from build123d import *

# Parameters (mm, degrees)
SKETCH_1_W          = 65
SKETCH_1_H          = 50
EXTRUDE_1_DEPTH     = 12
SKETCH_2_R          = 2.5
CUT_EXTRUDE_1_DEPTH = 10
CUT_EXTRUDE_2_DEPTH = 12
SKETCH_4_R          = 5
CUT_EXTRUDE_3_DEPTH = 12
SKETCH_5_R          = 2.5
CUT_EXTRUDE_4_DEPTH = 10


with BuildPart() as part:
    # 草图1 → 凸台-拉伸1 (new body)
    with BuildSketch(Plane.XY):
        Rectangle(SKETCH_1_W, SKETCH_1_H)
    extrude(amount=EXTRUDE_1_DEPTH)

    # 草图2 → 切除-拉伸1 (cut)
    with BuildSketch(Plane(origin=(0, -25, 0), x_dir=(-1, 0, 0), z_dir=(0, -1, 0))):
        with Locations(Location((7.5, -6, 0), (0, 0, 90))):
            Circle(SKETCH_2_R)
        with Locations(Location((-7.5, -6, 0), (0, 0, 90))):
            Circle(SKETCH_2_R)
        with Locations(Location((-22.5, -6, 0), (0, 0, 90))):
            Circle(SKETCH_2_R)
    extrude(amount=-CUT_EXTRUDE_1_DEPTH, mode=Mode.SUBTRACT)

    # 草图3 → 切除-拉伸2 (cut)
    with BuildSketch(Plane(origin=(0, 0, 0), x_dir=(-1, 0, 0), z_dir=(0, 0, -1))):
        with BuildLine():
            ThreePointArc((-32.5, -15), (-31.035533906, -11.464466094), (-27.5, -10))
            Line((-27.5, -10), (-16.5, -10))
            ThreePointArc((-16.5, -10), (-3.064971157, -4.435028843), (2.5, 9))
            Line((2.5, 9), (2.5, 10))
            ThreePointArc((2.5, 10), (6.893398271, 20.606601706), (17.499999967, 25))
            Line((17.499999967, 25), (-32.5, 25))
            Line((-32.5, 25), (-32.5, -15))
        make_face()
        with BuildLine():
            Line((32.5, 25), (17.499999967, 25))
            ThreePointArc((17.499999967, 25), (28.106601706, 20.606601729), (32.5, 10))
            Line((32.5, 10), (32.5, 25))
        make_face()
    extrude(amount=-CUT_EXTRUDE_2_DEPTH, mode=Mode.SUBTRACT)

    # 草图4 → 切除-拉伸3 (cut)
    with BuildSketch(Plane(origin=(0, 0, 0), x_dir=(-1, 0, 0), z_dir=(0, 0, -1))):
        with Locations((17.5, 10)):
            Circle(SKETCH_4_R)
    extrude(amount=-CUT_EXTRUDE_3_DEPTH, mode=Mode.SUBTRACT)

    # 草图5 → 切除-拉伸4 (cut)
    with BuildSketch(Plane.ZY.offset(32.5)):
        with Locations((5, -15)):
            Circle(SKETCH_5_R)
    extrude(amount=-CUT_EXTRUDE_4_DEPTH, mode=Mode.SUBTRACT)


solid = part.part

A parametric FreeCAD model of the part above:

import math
import FreeCAD as App
import Part
import Sketcher

V = App.Vector


def add_polygon(sketch, points):
    """Adds a closed chain of lines whose ends are joined by coincident constraints."""
    first, n = sketch.GeometryCount, len(points)
    for a, b in zip(points, points[1:] + points[:1]):
        sketch.addGeometry(Part.LineSegment(App.Vector(*a, 0), App.Vector(*b, 0)), False)
    for i in range(n):
        sketch.addConstraint(Sketcher.Constraint("Coincident", first + i, 2, first + (i + 1) % n, 1))

doc = App.newDocument("Part")
params = doc.addObject("Spreadsheet::Sheet", "Params")
for row, (alias, value) in enumerate([
    ("sketch1_width", "65 mm"),
    ("sketch1_height", "50 mm"),
    ("pad1_length", "12 mm"),
    ("sketch2_diameter", "5 mm"),
    ("pocket1_length", "10 mm"),
    ("sketch3_radius", "5 mm"),
    ("sketch3_radius2", "19 mm"),
    ("sketch3_radius3", "15 mm"),
    ("sketch3_width", "11 mm"),
    ("sketch3_height", "1 mm"),
    ("pocket2_length", "12 mm"),
    ("sketch4_diameter", "10 mm"),
    ("pocket3_length", "12 mm"),
    ("sketch5_diameter", "5 mm"),
    ("pocket4_length", "10 mm"),
], start=1):
    params.set(f"A{row}", alias)
    params.set(f"B{row}", "=" + value)
    params.setAlias(f"B{row}", alias)

body = doc.addObject("PartDesign::Body", "Body")

sketch1 = body.newObject("Sketcher::SketchObject", "Sketch")
sketch1.AttachmentSupport = (doc.getObject("XY_Plane"), [""])
sketch1.MapMode = "FlatFace"
add_polygon(sketch1, [(-32.5, 25), (-32.5, -25), (32.5, -25), (32.5, 25)])
sketch1.addConstraint([
    Sketcher.Constraint("Vertical", 0),
    Sketcher.Constraint("Horizontal", 1),
    Sketcher.Constraint("Vertical", 2),
    Sketcher.Constraint("Horizontal", 3),
    Sketcher.Constraint("Symmetric", 0, 2, 2, 2, -1, 1),
    Sketcher.Constraint("DistanceX", 1, 1, 1, 2, 65.0),
    Sketcher.Constraint("DistanceY", 0, 2, 0, 1, 50.0),
])
sketch1.setExpression("Constraints[9]", "Params.sketch1_width")
sketch1.setExpression("Constraints[10]", "Params.sketch1_height")
pad1 = body.newObject("PartDesign::Pad", "Pad")
pad1.Profile = sketch1
pad1.setExpression("Length", "Params.pad1_length")

sketch2 = body.newObject("Sketcher::SketchObject", "Sketch001")
sketch2.AttachmentSupport = (doc.getObject("XZ_Plane"), [""])
sketch2.MapMode = "FlatFace"
sketch2.AttachmentOffset = App.Placement(V(0, 0, 25), App.Rotation())
sketch2.addGeometry([
    Part.Circle(V(-7.5, 6, 0), V(0, 0, 1), 2.5),
    Part.Circle(V(7.5, 6, 0), V(0, 0, 1), 2.5),
    Part.Circle(V(22.5, 6, 0), V(0, 0, 1), 2.5),
], False)
sketch2.addConstraint([
    Sketcher.Constraint("Equal", 0, 1),
    Sketcher.Constraint("Equal", 1, 2),
    Sketcher.Constraint("Symmetric", 0, 3, 1, 3, -2),
    Sketcher.Constraint("Horizontal", 1, 3, 2, 3),
    Sketcher.Constraint("Diameter", 0, 5.0),
    Sketcher.Constraint("DistanceY", -1, 1, 0, 3, 6.0),
    Sketcher.Constraint("DistanceX", 0, 3, 1, 3, 15.0),
    Sketcher.Constraint("DistanceX", 1, 3, 2, 3, 15.0),
])
sketch2.setExpression("Constraints[4]", "Params.sketch2_diameter")
pocket1 = body.newObject("PartDesign::Pocket", "Pocket")
pocket1.Profile = sketch2
pocket1.setExpression("Length", "Params.pocket1_length")

sketch3 = body.newObject("Sketcher::SketchObject", "Sketch002")
sketch3.AttachmentSupport = (doc.getObject("XY_Plane"), [""])
sketch3.MapMode = "FlatFace"
sketch3.addGeometry([
    Part.ArcOfCircle(Part.Circle(V(27.5, -15, 0), V(0, 0, 1), 5), math.radians(0), math.radians(90)),
    Part.LineSegment(V(27.5, -10, 0), V(16.5, -10, 0)),
    Part.ArcOfCircle(Part.Circle(V(16.5, 9, 0), V(0, 0, 1), 19), math.radians(180), math.radians(270)),
    Part.LineSegment(V(-2.5, 9, 0), V(-2.5, 10, 0)),
    Part.ArcOfCircle(Part.Circle(V(-17.5, 10, 0), V(0, 0, 1), 15), math.radians(0), math.radians(90)),
    Part.LineSegment(V(-17.5, 25, 0), V(32.5, 25, 0)),
    Part.LineSegment(V(32.5, 25, 0), V(32.5, -15, 0)),
    Part.LineSegment(V(-32.5, 25, 0), V(-17.5, 25, 0)),
    Part.ArcOfCircle(Part.Circle(V(-17.5, 10, 0), V(0, 0, 1), 15), math.radians(90), math.radians(180)),
    Part.LineSegment(V(-32.5, 10, 0), V(-32.5, 25, 0)),
], False)
sketch3.addConstraint([
    Sketcher.Constraint("Tangent", 0, 2, 1, 1),
    Sketcher.Constraint("Tangent", 1, 2, 2, 2),
    Sketcher.Constraint("Tangent", 2, 1, 3, 1),
    Sketcher.Constraint("Tangent", 3, 2, 4, 1),
    Sketcher.Constraint("Tangent", 4, 2, 5, 1),
    Sketcher.Constraint("Coincident", 5, 2, 6, 1),
    Sketcher.Constraint("Tangent", 6, 2, 0, 1),
    Sketcher.Constraint("Tangent", 7, 2, 8, 1),
    Sketcher.Constraint("Tangent", 8, 2, 9, 1),
    Sketcher.Constraint("Coincident", 9, 2, 7, 1),
    Sketcher.Constraint("Horizontal", 1),
    Sketcher.Constraint("Vertical", 3),
    Sketcher.Constraint("Horizontal", 5),
    Sketcher.Constraint("Vertical", 6),
    Sketcher.Constraint("Horizontal", 7),
    Sketcher.Constraint("Vertical", 9),
    Sketcher.Constraint("Coincident", 8, 3, 4, 3),
    Sketcher.Constraint("Equal", 4, 8),
    Sketcher.Constraint("Radius", 0, 5.0),
    Sketcher.Constraint("Radius", 2, 19.0),
    Sketcher.Constraint("Radius", 4, 15.0),
    Sketcher.Constraint("DistanceX", 1, 2, 1, 1, 11.0),
    Sketcher.Constraint("DistanceY", 3, 1, 3, 2, 1.0),
    Sketcher.Constraint("DistanceY", 0, 3, -1, 1, 15.0),
    Sketcher.Constraint("DistanceX", -1, 1, 0, 3, 27.5),
])
sketch3.setExpression("Constraints[18]", "Params.sketch3_radius")
sketch3.setExpression("Constraints[19]", "Params.sketch3_radius2")
sketch3.setExpression("Constraints[20]", "Params.sketch3_radius3")
sketch3.setExpression("Constraints[21]", "Params.sketch3_width")
sketch3.setExpression("Constraints[22]", "Params.sketch3_height")
pocket2 = body.newObject("PartDesign::Pocket", "Pocket001")
pocket2.Profile = sketch3
pocket2.setExpression("Length", "Params.pocket2_length")
pocket2.Reversed = True

sketch4 = body.newObject("Sketcher::SketchObject", "Sketch003")
sketch4.AttachmentSupport = (doc.getObject("XY_Plane"), [""])
sketch4.MapMode = "FlatFace"
sketch4.addGeometry(Part.Circle(V(-17.5, 10, 0), V(0, 0, 1), 5), False)
sketch4.addConstraint([
    Sketcher.Constraint("Diameter", 0, 10.0),
    Sketcher.Constraint("DistanceY", -1, 1, 0, 3, 10.0),
    Sketcher.Constraint("DistanceX", 0, 3, -1, 1, 17.5),
])
sketch4.setExpression("Constraints[0]", "Params.sketch4_diameter")
pocket3 = body.newObject("PartDesign::Pocket", "Pocket002")
pocket3.Profile = sketch4
pocket3.setExpression("Length", "Params.pocket3_length")
pocket3.Reversed = True

sketch5 = body.newObject("Sketcher::SketchObject", "Sketch004")
sketch5.AttachmentSupport = (doc.getObject("YZ_Plane"), [""])
sketch5.MapMode = "FlatFace"
sketch5.AttachmentOffset = App.Placement(V(0, 0, -32.5), App.Rotation())
sketch5.addGeometry(Part.Circle(V(-15, 5, 0), V(0, 0, 1), 2.5), False)
sketch5.addConstraint([
    Sketcher.Constraint("Diameter", 0, 5.0),
    Sketcher.Constraint("DistanceX", 0, 3, -1, 1, 15.0),
    Sketcher.Constraint("DistanceY", -1, 1, 0, 3, 5.0),
])
sketch5.setExpression("Constraints[0]", "Params.sketch5_diameter")
pocket4 = body.newObject("PartDesign::Pocket", "Pocket003")
pocket4.Profile = sketch5
pocket4.setExpression("Length", "Params.pocket4_length")
pocket4.Reversed = True

doc.recompute()
